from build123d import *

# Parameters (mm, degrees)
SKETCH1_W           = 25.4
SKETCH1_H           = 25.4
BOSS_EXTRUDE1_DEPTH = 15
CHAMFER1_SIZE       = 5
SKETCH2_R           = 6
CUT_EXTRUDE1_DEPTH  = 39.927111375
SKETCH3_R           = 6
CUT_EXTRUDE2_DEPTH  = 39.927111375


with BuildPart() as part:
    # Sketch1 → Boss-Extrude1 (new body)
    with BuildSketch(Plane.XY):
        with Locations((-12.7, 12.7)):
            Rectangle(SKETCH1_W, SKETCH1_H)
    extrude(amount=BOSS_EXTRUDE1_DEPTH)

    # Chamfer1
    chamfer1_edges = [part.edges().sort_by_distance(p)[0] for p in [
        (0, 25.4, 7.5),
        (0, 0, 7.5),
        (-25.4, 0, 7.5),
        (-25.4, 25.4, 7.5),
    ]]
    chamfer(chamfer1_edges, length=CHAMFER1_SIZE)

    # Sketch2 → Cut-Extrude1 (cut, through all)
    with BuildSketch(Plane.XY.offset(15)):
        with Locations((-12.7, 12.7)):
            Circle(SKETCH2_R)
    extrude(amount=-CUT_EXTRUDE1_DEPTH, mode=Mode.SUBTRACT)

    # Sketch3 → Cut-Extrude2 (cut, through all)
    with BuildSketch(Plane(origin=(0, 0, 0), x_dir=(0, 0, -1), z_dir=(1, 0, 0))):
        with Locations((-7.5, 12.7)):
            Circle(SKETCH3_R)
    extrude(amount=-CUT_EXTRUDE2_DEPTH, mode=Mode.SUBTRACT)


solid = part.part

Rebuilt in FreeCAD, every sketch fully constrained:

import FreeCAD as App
import Part
import Sketcher

V = App.Vector


def edges_at(feature, points):
    """Names of the edges that pass closest to the given points."""
    edges = feature.Shape.Edges
    near = lambda p: min(range(len(edges)), key=lambda i: edges[i].distToShape(Part.Vertex(*p))[0])
    return sorted({f"Edge{near(p) + 1}" for p in points})

doc = App.newDocument("Part")
body = doc.addObject("PartDesign::Body", "Body")

# Sketch on XY plane
sketch1 = doc.addObject("Sketcher::SketchObject", "Sketch")
body.addObject(sketch1)
sketch1.AttachmentSupport = (doc.XY_Plane, [""])
sketch1.MapMode = "FlatFace"
sketch1.addGeometry([
    Part.LineSegment(V(-25, 25, 0), V(-25, 0, 0)),
    Part.LineSegment(V(-25, 0, 0), V(0, 0, 0)),
    Part.LineSegment(V(0, 0, 0), V(0, 25, 0)),
    Part.LineSegment(V(0, 25, 0), V(-25, 25, 0)),
], False)
sketch1.addConstraint([
    Sketcher.Constraint("Coincident", 0, 2, 1, 1),
    Sketcher.Constraint("Coincident", 1, 2, 2, 1),
    Sketcher.Constraint("Coincident", 2, 2, 3, 1),
    Sketcher.Constraint("Coincident", 3, 2, 0, 1),
    Sketcher.Constraint("Vertical", 0),
    Sketcher.Constraint("Horizontal", 1),
    Sketcher.Constraint("Vertical", 2),
    Sketcher.Constraint("Horizontal", 3),
    Sketcher.Constraint("Coincident", 1, 2, -1, 1),
    Sketcher.Constraint("Equal", 3, 0),
    Sketcher.Constraint("DistanceX", 1, 1, 1, 2, 25.4),
])
pad1 = doc.addObject("PartDesign::Pad", "Pad")
body.addObject(pad1)
pad1.Profile = sketch1
pad1.Length = 15
doc.recompute()

chamfer = doc.addObject("PartDesign::Chamfer", "Chamfer")
body.addObject(chamfer)
chamfer.Base = (pad1, edges_at(pad1, [
    (0, 25.4, 7.5),
    (0, 0, 7.5),
    (-25.4, 0, 7.5),
    (-25.4, 25.4, 7.5),
]))
chamfer.Size = 5

# Sketch on XY plane
sketch2 = doc.addObject("Sketcher::SketchObject", "Sketch001")
body.addObject(sketch2)
sketch2.AttachmentSupport = (doc.XY_Plane, [""])
sketch2.MapMode = "FlatFace"
sketch2.AttachmentOffset = App.Placement(V(0, 0, 15), App.Rotation())
sketch2.addGeometry(Part.Circle(V(-13, 13, 0), V(0, 0, 1), 6), False)
sketch2.addConstraint([
    Sketcher.Constraint("Diameter", 0, 12.0),
    Sketcher.Constraint("DistanceX", 0, 3, -1, 1, 12.7),
    Sketcher.Constraint("DistanceY", -1, 1, 0, 3, 12.7),
])
pocket1 = doc.addObject("PartDesign::Pocket", "Pocket")
body.addObject(pocket1)
pocket1.Profile = sketch2
pocket1.Type = "ThroughAll"

# Sketch on YZ plane
sketch3 = doc.addObject("Sketcher::SketchObject", "Sketch002")
body.addObject(sketch3)
sketch3.AttachmentSupport = (doc.YZ_Plane, [""])
sketch3.MapMode = "FlatFace"
sketch3.addGeometry(Part.Circle(V(13, 8, 0), V(0, 0, 1), 6), False)
sketch3.addConstraint([
    Sketcher.Constraint("Diameter", 0, 12.0),
    Sketcher.Constraint("DistanceX", -1, 1, 0, 3, 12.7),
    Sketcher.Constraint("DistanceY", -1, 1, 0, 3, 7.5),
])
pocket2 = doc.addObject("PartDesign::Pocket", "Pocket001")
body.addObject(pocket2)
pocket2.Profile = sketch3
pocket2.Type = "ThroughAll"

doc.recompute()
